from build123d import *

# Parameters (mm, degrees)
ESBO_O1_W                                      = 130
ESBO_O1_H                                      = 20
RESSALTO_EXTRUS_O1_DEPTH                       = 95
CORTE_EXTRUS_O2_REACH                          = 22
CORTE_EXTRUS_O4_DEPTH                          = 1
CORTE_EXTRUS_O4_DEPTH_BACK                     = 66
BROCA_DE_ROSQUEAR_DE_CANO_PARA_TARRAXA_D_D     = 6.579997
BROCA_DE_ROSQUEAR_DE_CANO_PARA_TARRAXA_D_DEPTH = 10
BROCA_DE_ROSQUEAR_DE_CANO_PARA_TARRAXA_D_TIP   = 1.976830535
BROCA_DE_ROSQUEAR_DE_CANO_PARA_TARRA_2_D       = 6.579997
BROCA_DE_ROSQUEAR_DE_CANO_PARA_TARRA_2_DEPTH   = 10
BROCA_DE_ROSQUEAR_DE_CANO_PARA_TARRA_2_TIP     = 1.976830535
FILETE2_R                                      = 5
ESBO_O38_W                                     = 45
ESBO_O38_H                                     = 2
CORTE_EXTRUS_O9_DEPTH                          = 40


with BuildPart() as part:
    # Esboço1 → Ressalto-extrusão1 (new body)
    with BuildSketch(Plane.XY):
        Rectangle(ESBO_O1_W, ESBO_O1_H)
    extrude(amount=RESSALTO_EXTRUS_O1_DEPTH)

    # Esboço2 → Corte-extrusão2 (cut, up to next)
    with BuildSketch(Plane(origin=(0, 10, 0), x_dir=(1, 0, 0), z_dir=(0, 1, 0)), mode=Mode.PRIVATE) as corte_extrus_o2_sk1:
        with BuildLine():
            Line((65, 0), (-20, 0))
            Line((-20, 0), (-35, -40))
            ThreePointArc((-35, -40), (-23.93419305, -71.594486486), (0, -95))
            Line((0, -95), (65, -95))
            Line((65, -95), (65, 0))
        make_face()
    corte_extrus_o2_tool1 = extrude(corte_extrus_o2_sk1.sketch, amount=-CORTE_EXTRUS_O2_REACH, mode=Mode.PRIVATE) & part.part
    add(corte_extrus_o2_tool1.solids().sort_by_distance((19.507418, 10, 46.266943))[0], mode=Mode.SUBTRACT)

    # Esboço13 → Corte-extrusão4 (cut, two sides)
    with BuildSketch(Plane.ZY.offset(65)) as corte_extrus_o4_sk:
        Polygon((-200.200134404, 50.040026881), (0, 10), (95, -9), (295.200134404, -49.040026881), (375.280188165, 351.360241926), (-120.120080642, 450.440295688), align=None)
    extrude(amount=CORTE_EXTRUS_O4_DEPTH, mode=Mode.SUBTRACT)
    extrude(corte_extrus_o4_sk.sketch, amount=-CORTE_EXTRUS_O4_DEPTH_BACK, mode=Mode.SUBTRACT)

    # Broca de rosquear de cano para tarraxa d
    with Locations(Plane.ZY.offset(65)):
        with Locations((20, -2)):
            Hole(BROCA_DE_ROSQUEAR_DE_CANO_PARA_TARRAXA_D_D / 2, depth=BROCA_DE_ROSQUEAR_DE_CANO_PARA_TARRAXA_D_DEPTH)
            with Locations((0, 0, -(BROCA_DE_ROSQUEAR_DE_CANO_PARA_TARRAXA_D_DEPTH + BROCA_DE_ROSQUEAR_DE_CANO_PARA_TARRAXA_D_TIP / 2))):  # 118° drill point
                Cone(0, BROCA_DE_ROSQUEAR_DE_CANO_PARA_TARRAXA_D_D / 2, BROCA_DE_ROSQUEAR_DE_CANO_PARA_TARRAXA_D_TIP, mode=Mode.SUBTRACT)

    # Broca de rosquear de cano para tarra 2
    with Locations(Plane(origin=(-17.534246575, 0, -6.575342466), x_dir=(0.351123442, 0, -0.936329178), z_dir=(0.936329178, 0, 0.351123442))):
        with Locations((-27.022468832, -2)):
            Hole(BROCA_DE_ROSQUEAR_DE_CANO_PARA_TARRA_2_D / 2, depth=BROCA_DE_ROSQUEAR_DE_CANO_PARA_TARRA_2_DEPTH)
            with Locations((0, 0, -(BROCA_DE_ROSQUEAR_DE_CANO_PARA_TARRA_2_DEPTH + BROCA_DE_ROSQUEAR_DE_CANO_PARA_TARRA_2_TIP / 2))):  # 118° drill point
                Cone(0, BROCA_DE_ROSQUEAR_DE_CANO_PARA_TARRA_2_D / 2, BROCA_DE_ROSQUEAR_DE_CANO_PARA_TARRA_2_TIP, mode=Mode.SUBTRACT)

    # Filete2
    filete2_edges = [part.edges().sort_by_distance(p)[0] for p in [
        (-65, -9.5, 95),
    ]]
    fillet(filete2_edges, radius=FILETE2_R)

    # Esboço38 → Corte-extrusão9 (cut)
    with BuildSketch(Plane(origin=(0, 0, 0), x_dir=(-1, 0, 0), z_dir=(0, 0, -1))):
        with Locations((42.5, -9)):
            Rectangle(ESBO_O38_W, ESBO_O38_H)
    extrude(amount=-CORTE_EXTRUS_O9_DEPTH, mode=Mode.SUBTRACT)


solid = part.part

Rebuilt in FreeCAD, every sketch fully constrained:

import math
import FreeCAD as App
import Part
import Sketcher
from FreeCAD import Vector
Q = App.Units.Quantity


def edges_at(feature, points):
    """Names of the edges that pass closest to the given points."""
    edges = feature.Shape.Edges
    near = lambda p: min(range(len(edges)), key=lambda i: edges[i].distToShape(Part.Vertex(*p))[0])
    return sorted({f"Edge{near(p) + 1}" for p in points})

doc = App.newDocument("Part")
body = doc.addObject("PartDesign::Body", "Body")

sketch1 = doc.addObject("Sketcher::SketchObject", "Sketch")
body.addObject(sketch1)
sketch1.AttachmentSupport = (doc.XY_Plane, [""])
sketch1.MapMode = "FlatFace"
sketch1.addGeometry([
    Part.LineSegment(Vector(-65, 10, 0), Vector(-65, -10, 0)),
    Part.LineSegment(Vector(-65, -10, 0), Vector(65, -10, 0)),
    Part.LineSegment(Vector(65, -10, 0), Vector(65, 10, 0)),
    Part.LineSegment(Vector(65, 10, 0), Vector(-65, 10, 0)),
], False)
sketch1.addConstraint([
    Sketcher.Constraint("Coincident", 0, 2, 1, 1),
    Sketcher.Constraint("Coincident", 1, 2, 2, 1),
    Sketcher.Constraint("Coincident", 2, 2, 3, 1),
    Sketcher.Constraint("Coincident", 3, 2, 0, 1),
    Sketcher.Constraint("Vertical", 0),
    Sketcher.Constraint("Horizontal", 1),
    Sketcher.Constraint("Vertical", 2),
    Sketcher.Constraint("Horizontal", 3),
    Sketcher.Constraint("Symmetric", 0, 2, 2, 2, -1, 1),
    Sketcher.Constraint("DistanceX", 1, 1, 1, 2, Q("130 mm")),
    Sketcher.Constraint("DistanceY", 0, 2, 0, 1, Q("20 mm")),
])
pad1 = doc.addObject("PartDesign::Pad", "Pad")
body.addObject(pad1)
pad1.Profile = sketch1
pad1.Length = 95

sketch2 = doc.addObject("Sketcher::SketchObject", "Sketch001")
body.addObject(sketch2)
sketch2.AttachmentSupport = (doc.XZ_Plane, [""])
sketch2.MapMode = "FlatFace"
sketch2.AttachmentOffset = App.Placement(Vector(0, 0, -10), App.Rotation())
sketch2.addGeometry([
    Part.LineSegment(Vector(65, 0, 0), Vector(-20, 0, 0)),
    Part.LineSegment(Vector(-20, 0, 0), Vector(-35, 40, 0)),
    Part.ArcOfCircle(Part.Circle(Vector(38, 32, 0), Vector(0, 0, 1), 73), math.radians(121), math.radians(174)),
    Part.LineSegment(Vector(0, 95, 0), Vector(65, 95, 0)),
    Part.LineSegment(Vector(65, 95, 0), Vector(65, 0, 0)),
], False)
sketch2.addConstraint([
    Sketcher.Constraint("Coincident", 0, 2, 1, 1),
    Sketcher.Constraint("Coincident", 1, 2, 2, 2),
    Sketcher.Constraint("Coincident", 2, 1, 3, 1),
    Sketcher.Constraint("Coincident", 3, 2, 4, 1),
    Sketcher.Constraint("Coincident", 4, 2, 0, 1),
    Sketcher.Constraint("Horizontal", 0),
    Sketcher.Constraint("Horizontal", 3),
    Sketcher.Constraint("Vertical", 4),
    Sketcher.Constraint("PointOnObject", 0, 2, -1),
    Sketcher.Constraint("PointOnObject", 2, 1, -2),
    Sketcher.Constraint("DistanceX", 0, 2, 0, 1, Q("85 mm")),
    Sketcher.Constraint("DistanceX", 3, 1, 3, 2, Q("65 mm")),
    Sketcher.Constraint("DistanceY", 4, 2, 4, 1, Q("95 mm")),
    Sketcher.Constraint("DistanceX", 1, 2, -1, 1, Q("35 mm")),
    Sketcher.Constraint("DistanceY", -1, 1, 1, 2, Q("40 mm")),
    Sketcher.Constraint("Radius", 2, Q("73.471589 mm")),
])
pocket1 = doc.addObject("PartDesign::Pocket", "Pocket")
body.addObject(pocket1)
pocket1.Profile = sketch2
pocket1.Type = "UpToFirst"
pocket1.Reversed = True

sketch3 = doc.addObject("Sketcher::SketchObject", "Sketch002")
body.addObject(sketch3)
sketch3.AttachmentSupport = (doc.YZ_Plane, [""])
sketch3.MapMode = "FlatFace"
sketch3.AttachmentOffset = App.Placement(Vector(0, 0, -65), App.Rotation())
sketch3.addGeometry([
    Part.LineSegment(Vector(50, -200, 0), Vector(-49, 295, 0)),
    Part.LineSegment(Vector(-49, 295, 0), Vector(351, 375, 0)),
    Part.LineSegment(Vector(351, 375, 0), Vector(450, -120, 0)),
    Part.LineSegment(Vector(450, -120, 0), Vector(50, -200, 0)),
], False)
sketch3.addConstraint([
    Sketcher.Constraint("Coincident", 0, 2, 1, 1),
    Sketcher.Constraint("Coincident", 1, 2, 2, 1),
    Sketcher.Constraint("Coincident", 2, 2, 3, 1),
    Sketcher.Constraint("Coincident", 3, 2, 0, 1),
    Sketcher.Constraint("Perpendicular", 0, 1),
    Sketcher.Constraint("Perpendicular", 1, 2),
    Sketcher.Constraint("Perpendicular", 2, 3),
    Sketcher.Constraint("DistanceX", -1, 1, 1, 2, Q("351.360242 mm")),
    Sketcher.Constraint("DistanceY", -1, 1, 1, 2, Q("375.280188 mm")),
    Sketcher.Constraint("DistanceY", 2, 2, -1, 1, Q("120.120081 mm")),
    Sketcher.Constraint("DistanceX", 0, 2, 1, 2, Q("400.400269 mm")),
    Sketcher.Constraint("Distance", 0, Q("505.211128 mm")),
])
pocket2 = doc.addObject("PartDesign::Pocket", "Pocket001")
body.addObject(pocket2)
pocket2.Profile = sketch3
pocket2.Type = "ThroughAll"
pocket2.Midplane = True

sketch4 = doc.addObject("Sketcher::SketchObject", "Sketch003")
body.addObject(sketch4)
sketch4.AttachmentSupport = (doc.YZ_Plane, [""])
sketch4.MapMode = "FlatFace"
sketch4.AttachmentOffset = App.Placement(Vector(0, 0, -65), App.Rotation())
sketch4.addGeometry(Part.Circle(Vector(-2, 20, 0), Vector(0, 0, 1), 3.3), False)
sketch4.addConstraint([
    Sketcher.Constraint("DistanceX", 0, 3, -1, 1, Q("2 mm")),
    Sketcher.Constraint("DistanceY", -1, 1, 0, 3, Q("20 mm")),
    Sketcher.Constraint("Diameter", 0, Q("6.579997 mm")),
])
doc.recompute()
hole = doc.addObject("PartDesign::Hole", "Hole")
body.addObject(hole)
hole.Profile = sketch4
hole.ThreadType = "None"
hole.Diameter = 6.579997
hole.DepthType = "Dimension"
hole.Depth = 10
hole.DrillPoint = "Angled"
hole.DrillPointAngle = 118
hole.Reversed = True

sketch5 = doc.addObject("Sketcher::SketchObject", "Sketch004")
body.addObject(sketch5)
sketch5.Placement = App.Placement(Vector(-17.534247, 0, -6.575342), App.Rotation(Vector(0.351123442, 0, -0.936329177), Vector(0, 0.999999999, 0), Vector(0.936329177, 0, 0.351123442), "ZXY"))
sketch5.addGeometry(Part.Circle(Vector(-27, -2, 0), Vector(0, 0, 1), 3.3), False)
sketch5.addConstraint([
    Sketcher.Constraint("DistanceY", 0, 3, -1, 1, Q("2 mm")),
    Sketcher.Constraint("Diameter", 0, Q("6.579997 mm")),
    Sketcher.Constraint("DistanceX", 0, 3, -1, 1, Q("27.022469 mm")),
])
doc.recompute()
hole2 = doc.addObject("PartDesign::Hole", "Hole001")
body.addObject(hole2)
hole2.Profile = sketch5
hole2.ThreadType = "None"
hole2.Diameter = 6.579997
hole2.DepthType = "Dimension"
hole2.Depth = 10
hole2.DrillPoint = "Angled"
hole2.DrillPointAngle = 118
doc.recompute()

fillet = doc.addObject("PartDesign::Fillet", "Fillet")
body.addObject(fillet)
fillet.Base = (hole2, edges_at(hole2, [(-65, -9.5, 95)]))
fillet.Radius = 5

sketch6 = doc.addObject("Sketcher::SketchObject", "Sketch005")
body.addObject(sketch6)
sketch6.AttachmentSupport = (doc.XY_Plane, [""])
sketch6.MapMode = "FlatFace"
sketch6.addGeometry([
    Part.LineSegment(Vector(-20, -8, 0), Vector(-20, -10, 0)),
    Part.LineSegment(Vector(-20, -10, 0), Vector(-65, -10, 0)),
    Part.LineSegment(Vector(-65, -10, 0), Vector(-65, -8, 0)),
    Part.LineSegment(Vector(-65, -8, 0), Vector(-20, -8, 0)),
], False)
sketch6.addConstraint([
    Sketcher.Constraint("Coincident", 0, 2, 1, 1),
    Sketcher.Constraint("Coincident", 1, 2, 2, 1),
    Sketcher.Constraint("Coincident", 2, 2, 3, 1),
    Sketcher.Constraint("Coincident", 3, 2, 0, 1),
    Sketcher.Constraint("Vertical", 0),
    Sketcher.Constraint("Horizontal", 1),
    Sketcher.Constraint("Vertical", 2),
    Sketcher.Constraint("Horizontal", 3),
    Sketcher.Constraint("DistanceX", 1, 2, 1, 1, Q("45 mm")),
    Sketcher.Constraint("DistanceY", 0, 2, 0, 1, Q("2 mm")),
    Sketcher.Constraint("DistanceX", 0, 2, -1, 1, Q("20 mm")),
    Sketcher.Constraint("DistanceY", 0, 2, -1, 1, Q("10 mm")),
])
pocket3 = doc.addObject("PartDesign::Pocket", "Pocket002")
body.addObject(pocket3)
pocket3.Profile = sketch6
pocket3.Length = 40
pocket3.Reversed = True

doc.recompute()
